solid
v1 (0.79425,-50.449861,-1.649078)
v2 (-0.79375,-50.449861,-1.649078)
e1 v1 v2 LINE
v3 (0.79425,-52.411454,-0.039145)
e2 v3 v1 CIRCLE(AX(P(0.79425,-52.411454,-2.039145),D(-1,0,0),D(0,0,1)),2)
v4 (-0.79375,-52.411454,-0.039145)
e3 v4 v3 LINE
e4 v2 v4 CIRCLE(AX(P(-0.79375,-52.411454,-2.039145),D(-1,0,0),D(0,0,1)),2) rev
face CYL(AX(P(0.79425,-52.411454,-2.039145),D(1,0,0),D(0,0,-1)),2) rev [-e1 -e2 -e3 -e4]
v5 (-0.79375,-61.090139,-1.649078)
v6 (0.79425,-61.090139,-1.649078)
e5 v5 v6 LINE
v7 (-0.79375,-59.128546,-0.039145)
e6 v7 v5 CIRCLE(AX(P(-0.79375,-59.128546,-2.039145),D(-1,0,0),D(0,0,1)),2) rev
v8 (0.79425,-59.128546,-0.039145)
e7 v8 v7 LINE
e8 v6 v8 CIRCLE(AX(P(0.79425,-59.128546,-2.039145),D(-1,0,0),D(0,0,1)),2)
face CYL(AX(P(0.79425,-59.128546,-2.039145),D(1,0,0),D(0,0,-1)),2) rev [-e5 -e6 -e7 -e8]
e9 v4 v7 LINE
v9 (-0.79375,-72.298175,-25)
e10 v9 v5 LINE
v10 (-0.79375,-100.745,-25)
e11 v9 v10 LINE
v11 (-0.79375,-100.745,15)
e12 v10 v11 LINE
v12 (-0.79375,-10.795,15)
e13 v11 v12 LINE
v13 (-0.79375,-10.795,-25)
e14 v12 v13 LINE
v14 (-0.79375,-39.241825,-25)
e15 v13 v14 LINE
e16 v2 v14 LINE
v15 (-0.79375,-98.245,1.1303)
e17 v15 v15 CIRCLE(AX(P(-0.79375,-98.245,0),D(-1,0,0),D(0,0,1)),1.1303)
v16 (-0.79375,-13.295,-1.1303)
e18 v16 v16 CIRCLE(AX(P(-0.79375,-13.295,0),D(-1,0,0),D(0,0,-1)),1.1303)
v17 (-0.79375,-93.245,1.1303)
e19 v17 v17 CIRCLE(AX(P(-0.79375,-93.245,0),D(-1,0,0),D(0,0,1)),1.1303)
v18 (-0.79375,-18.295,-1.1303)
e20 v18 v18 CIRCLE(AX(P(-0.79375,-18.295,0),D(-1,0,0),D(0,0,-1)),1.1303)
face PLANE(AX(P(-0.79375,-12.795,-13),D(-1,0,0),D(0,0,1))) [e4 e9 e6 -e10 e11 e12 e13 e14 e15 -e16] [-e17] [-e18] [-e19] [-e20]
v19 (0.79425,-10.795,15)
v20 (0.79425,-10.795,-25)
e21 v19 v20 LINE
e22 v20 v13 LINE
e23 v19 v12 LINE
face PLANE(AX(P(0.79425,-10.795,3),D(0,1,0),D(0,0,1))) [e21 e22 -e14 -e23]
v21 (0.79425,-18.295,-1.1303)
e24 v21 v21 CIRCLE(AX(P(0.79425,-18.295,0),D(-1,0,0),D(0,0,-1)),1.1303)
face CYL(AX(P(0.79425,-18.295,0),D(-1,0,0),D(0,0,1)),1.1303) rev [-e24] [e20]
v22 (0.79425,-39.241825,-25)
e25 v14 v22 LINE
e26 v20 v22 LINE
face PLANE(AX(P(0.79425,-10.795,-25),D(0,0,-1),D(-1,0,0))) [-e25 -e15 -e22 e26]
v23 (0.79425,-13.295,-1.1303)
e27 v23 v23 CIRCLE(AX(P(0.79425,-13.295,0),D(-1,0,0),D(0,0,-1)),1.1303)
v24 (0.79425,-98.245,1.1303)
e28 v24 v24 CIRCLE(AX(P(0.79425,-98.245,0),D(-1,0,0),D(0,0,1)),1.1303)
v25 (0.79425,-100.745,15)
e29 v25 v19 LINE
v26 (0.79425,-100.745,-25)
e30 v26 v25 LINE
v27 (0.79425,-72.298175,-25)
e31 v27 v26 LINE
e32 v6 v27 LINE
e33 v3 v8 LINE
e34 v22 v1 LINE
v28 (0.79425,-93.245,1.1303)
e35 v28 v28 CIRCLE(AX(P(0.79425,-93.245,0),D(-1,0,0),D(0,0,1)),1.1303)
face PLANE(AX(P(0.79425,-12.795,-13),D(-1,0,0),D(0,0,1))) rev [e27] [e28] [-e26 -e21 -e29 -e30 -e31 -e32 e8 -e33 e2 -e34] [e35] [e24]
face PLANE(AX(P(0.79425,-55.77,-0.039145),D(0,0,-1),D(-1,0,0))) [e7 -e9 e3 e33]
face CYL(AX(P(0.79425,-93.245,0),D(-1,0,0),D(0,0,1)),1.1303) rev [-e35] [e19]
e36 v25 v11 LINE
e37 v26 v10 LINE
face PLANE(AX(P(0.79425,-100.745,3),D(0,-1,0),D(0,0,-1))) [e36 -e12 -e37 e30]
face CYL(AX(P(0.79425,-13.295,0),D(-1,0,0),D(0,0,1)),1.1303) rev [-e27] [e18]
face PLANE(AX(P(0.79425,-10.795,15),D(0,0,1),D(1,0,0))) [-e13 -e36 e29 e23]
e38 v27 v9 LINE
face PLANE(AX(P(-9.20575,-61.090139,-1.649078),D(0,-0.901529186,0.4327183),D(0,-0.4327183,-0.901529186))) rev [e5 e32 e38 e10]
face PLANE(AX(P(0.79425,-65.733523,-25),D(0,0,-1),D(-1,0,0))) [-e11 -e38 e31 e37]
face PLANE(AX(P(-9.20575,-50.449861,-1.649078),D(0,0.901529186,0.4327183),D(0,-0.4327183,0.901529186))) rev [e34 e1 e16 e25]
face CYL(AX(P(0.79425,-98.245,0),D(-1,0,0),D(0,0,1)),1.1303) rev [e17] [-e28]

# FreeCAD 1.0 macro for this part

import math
import FreeCAD as App
import Part
import Sketcher

V = App.Vector
Q = App.Units.Quantity


def edges_at(feature, points):
    """Names of the edges that pass closest to the given points."""
    edges = feature.Shape.Edges
    near = lambda p: min(range(len(edges)), key=lambda i: edges[i].distToShape(Part.Vertex(*p))[0])
    return sorted({f"Edge{near(p) + 1}" for p in points})

doc = App.newDocument("Part")
body = doc.addObject("PartDesign::Body", "Body")

sketch1 = body.newObject("Sketcher::SketchObject", "Sketch")
sketch1.AttachmentSupport = (doc.getObject("YZ_Plane"), [""])
sketch1.MapMode = "FlatFace"
sketch1.AttachmentOffset = App.Placement(V(0, 0, -0.79375), App.Rotation())
sketch1.addGeometry(Part.ArcOfCircle(Part.Circle(V(-12.795, 3, 0), V(0, 0, 1), 2), math.radians(0), math.radians(90)), False)
sketch1.addGeometry(Part.LineSegment(V(-10.795, 3, 0), V(-10.795, -13, 0)), False)
sketch1.addGeometry(Part.ArcOfCircle(Part.Circle(V(-12.795, -13, 0), V(0, 0, 1), 2), math.radians(-90), math.radians(0)), False)
sketch1.addGeometry(Part.LineSegment(V(-12.795, -15, 0), V(-47.795, -15, 0)), False)
sketch1.addGeometry(Part.LineSegment(V(-47.795, -15, 0), V(-50.77, -0.039145, 0)), False)
sketch1.addGeometry(Part.LineSegment(V(-50.77, -0.039145, 0), V(-60.77, -0.039145, 0)), False)
sketch1.addGeometry(Part.LineSegment(V(-60.77, -0.039145, 0), V(-63.745, -15, 0)), False)
sketch1.addGeometry(Part.LineSegment(V(-63.745, -15, 0), V(-98.745, -15, 0)), False)
sketch1.addGeometry(Part.ArcOfCircle(Part.Circle(V(-98.745, -13, 0), V(0, 0, 1), 2), math.radians(-180), math.radians(-90)), False)
sketch1.addGeometry(Part.LineSegment(V(-100.745, -13, 0), V(-100.745, 3, 0)), False)
sketch1.addGeometry(Part.ArcOfCircle(Part.Circle(V(-98.745, 3, 0), V(0, 0, 1), 2), math.radians(90), math.radians(180)), False)
sketch1.addGeometry(Part.LineSegment(V(-98.745, 5, 0), V(-12.795, 5, 0)), False)
sketch1.addGeometry(Part.Circle(V(-13.295, 0, 0), V(0, 0, 1), 1.1303), False)
sketch1.addGeometry(Part.Circle(V(-18.295, 0, 0), V(0, 0, 1), 1.1303), False)
sketch1.addGeometry(Part.Circle(V(-93.245, 0, 0), V(0, 0, 1), 1.1303), False)
sketch1.addGeometry(Part.Circle(V(-98.245, 0, 0), V(0, 0, 1), 1.1303), False)
sketch1.addConstraint(Sketcher.Constraint("Tangent", 0, 1, 1, 1))
sketch1.addConstraint(Sketcher.Constraint("Tangent", 1, 2, 2, 2))
sketch1.addConstraint(Sketcher.Constraint("Tangent", 2, 1, 3, 1))
sketch1.addConstraint(Sketcher.Constraint("Coincident", 3, 2, 4, 1))
sketch1.addConstraint(Sketcher.Constraint("Coincident", 4, 2, 5, 1))
sketch1.addConstraint(Sketcher.Constraint("Coincident", 5, 2, 6, 1))
sketch1.addConstraint(Sketcher.Constraint("Coincident", 6, 2, 7, 1))
sketch1.addConstraint(Sketcher.Constraint("Tangent", 7, 2, 8, 2))
sketch1.addConstraint(Sketcher.Constraint("Tangent", 8, 1, 9, 1))
sketch1.addConstraint(Sketcher.Constraint("Tangent", 9, 2, 10, 2))
sketch1.addConstraint(Sketcher.Constraint("Tangent", 10, 1, 11, 1))
sketch1.addConstraint(Sketcher.Constraint("Tangent", 11, 2, 0, 2))
sketch1.addConstraint(Sketcher.Constraint("Vertical", 1))
sketch1.addConstraint(Sketcher.Constraint("Horizontal", 3))
sketch1.addConstraint(Sketcher.Constraint("Horizontal", 5))
sketch1.addConstraint(Sketcher.Constraint("Horizontal", 7))
sketch1.addConstraint(Sketcher.Constraint("Vertical", 9))
sketch1.addConstraint(Sketcher.Constraint("Horizontal", 11))
sketch1.addConstraint(Sketcher.Constraint("Equal", 0, 2))
sketch1.addConstraint(Sketcher.Constraint("Equal", 2, 8))
sketch1.addConstraint(Sketcher.Constraint("Equal", 8, 10))
sketch1.addConstraint(Sketcher.Constraint("Equal", 12, 13))
sketch1.addConstraint(Sketcher.Constraint("Equal", 13, 14))
sketch1.addConstraint(Sketcher.Constraint("Equal", 14, 15))
sketch1.addConstraint(Sketcher.Constraint("PointOnObject", 12, 3, -1))
sketch1.addConstraint(Sketcher.Constraint("PointOnObject", 13, 3, -1))
sketch1.addConstraint(Sketcher.Constraint("PointOnObject", 14, 3, -1))
sketch1.addConstraint(Sketcher.Constraint("PointOnObject", 15, 3, -1))
sketch1.addConstraint(Sketcher.Constraint("Horizontal", 2, 3, 8, 3))
sketch1.addConstraint(Sketcher.Constraint("Equal", 3, 7))
sketch1.addConstraint(Sketcher.Constraint("Equal", 4, 6))
sketch1.addConstraint(Sketcher.Constraint("Radius", 0, Q("2 mm")))
sketch1.addConstraint(Sketcher.Constraint("DistanceX", 3, 2, 3, 1, Q("35 mm")))
sketch1.addConstraint(Sketcher.Constraint("DistanceX", 5, 2, 5, 1, Q("10 mm")))
sketch1.addConstraint(Sketcher.Constraint("DistanceY", 1, 2, 1, 1, Q("16 mm")))
sketch1.addConstraint(Sketcher.Constraint("DistanceY", -1, 1, 0, 3, Q("3 mm")))
sketch1.addConstraint(Sketcher.Constraint("DistanceX", 13, 3, 12, 3, Q("5 mm")))
sketch1.addConstraint(Sketcher.Constraint("DistanceX", 15, 3, 14, 3, Q("5 mm")))
sketch1.addConstraint(Sketcher.Constraint("Diameter", 12, Q("2.2606 mm")))
sketch1.addConstraint(Sketcher.Constraint("DistanceX", 11, 1, 11, 2, Q("85.95 mm")))
sketch1.addConstraint(Sketcher.Constraint("DistanceX", 12, 3, 0, 3, Q("0.5 mm")))
sketch1.addConstraint(Sketcher.Constraint("DistanceX", 10, 3, 14, 3, Q("5.5 mm")))
sketch1.addConstraint(Sketcher.Constraint("DistanceX", 4, 2, -1, 1, Q("50.77 mm")))
sketch1.addConstraint(Sketcher.Constraint("Distance", 4, Q("15.25378 mm")))
pad1 = body.newObject("PartDesign::Pad", "Pad")
pad1.Profile = sketch1
pad1.Length = 1.588
doc.recompute()

fillet = body.newObject("PartDesign::Fillet", "Fillet")
fillet.Base = (pad1, edges_at(pad1, [(0, -50.77, -0.039)]))
fillet.Radius = 2
doc.recompute()

fillet2 = body.newObject("PartDesign::Fillet", "Fillet001")
fillet2.Base = (fillet, edges_at(fillet, [(0, -47.795, -15)]))
fillet2.Radius = 2
doc.recompute()

fillet3 = body.newObject("PartDesign::Fillet", "Fillet002")
fillet3.Base = (fillet2, edges_at(fillet2, [(0, -60.77, -0.039)]))
fillet3.Radius = 2
doc.recompute()

fillet4 = body.newObject("PartDesign::Fillet", "Fillet003")
fillet4.Base = (fillet3, edges_at(fillet3, [(0, -63.745, -15)]))
fillet4.Radius = 2

sketch2 = body.newObject("Sketcher::SketchObject", "Sketch001")
sketch2.AttachmentSupport = (doc.getObject("YZ_Plane"), [""])
sketch2.MapMode = "FlatFace"
sketch2.AttachmentOffset = App.Placement(V(0, 0, -0.79375), App.Rotation())
sketch2.addGeometry(Part.LineSegment(V(-10.795, 3, 0), V(-100.745, 3, 0)), False)
sketch2.addGeometry(Part.LineSegment(V(-100.745, 3, 0), V(-100.745, 15, 0)), False)
sketch2.addGeometry(Part.LineSegment(V(-100.745, 15, 0), V(-10.795, 15, 0)), False)
sketch2.addGeometry(Part.LineSegment(V(-10.795, 15, 0), V(-10.795, 3, 0)), False)
sketch2.addGeometry(Part.LineSegment(V(-10.795, -25, 0), V(-45.806477, -25, 0)), False)
sketch2.addGeometry(Part.LineSegment(V(-45.806477, -25, 0), V(-48.115139, -13.390067, 0)), False)
sketch2.addGeometry(Part.LineSegment(V(-48.115139, -13.390067, 0), V(-10.795, -13, 0)), False)
sketch2.addGeometry(Part.LineSegment(V(-10.795, -13, 0), V(-10.795, -25, 0)), False)
sketch2.addGeometry(Part.LineSegment(V(-63.424861, -13.390067, 0), V(-65.733523, -25, 0)), False)
sketch2.addGeometry(Part.LineSegment(V(-65.733523, -25, 0), V(-100.745, -25, 0)), False)
sketch2.addGeometry(Part.LineSegment(V(-100.745, -25, 0), V(-100.745, -13, 0)), False)
sketch2.addGeometry(Part.LineSegment(V(-100.745, -13, 0), V(-63.424861, -13.390067, 0)), False)
sketch2.addConstraint(Sketcher.Constraint("Coincident", 0, 2, 1, 1))
sketch2.addConstraint(Sketcher.Constraint("Coincident", 1, 2, 2, 1))
sketch2.addConstraint(Sketcher.Constraint("Coincident", 2, 2, 3, 1))
sketch2.addConstraint(Sketcher.Constraint("Coincident", 3, 2, 0, 1))
sketch2.addConstraint(Sketcher.Constraint("Coincident", 4, 2, 5, 1))
sketch2.addConstraint(Sketcher.Constraint("Coincident", 5, 2, 6, 1))
sketch2.addConstraint(Sketcher.Constraint("Coincident", 6, 2, 7, 1))
sketch2.addConstraint(Sketcher.Constraint("Coincident", 7, 2, 4, 1))
sketch2.addConstraint(Sketcher.Constraint("Coincident", 8, 2, 9, 1))
sketch2.addConstraint(Sketcher.Constraint("Coincident", 9, 2, 10, 1))
sketch2.addConstraint(Sketcher.Constraint("Coincident", 10, 2, 11, 1))
sketch2.addConstraint(Sketcher.Constraint("Coincident", 11, 2, 8, 1))
sketch2.addConstraint(Sketcher.Constraint("Horizontal", 0))
sketch2.addConstraint(Sketcher.Constraint("Vertical", 1))
sketch2.addConstraint(Sketcher.Constraint("Horizontal", 2))
sketch2.addConstraint(Sketcher.Constraint("Vertical", 3))
sketch2.addConstraint(Sketcher.Constraint("Horizontal", 4))
sketch2.addConstraint(Sketcher.Constraint("Vertical", 7))
sketch2.addConstraint(Sketcher.Constraint("Horizontal", 9))
sketch2.addConstraint(Sketcher.Constraint("Vertical", 10))
sketch2.addConstraint(Sketcher.Constraint("Horizontal", 7, 2, 8, 2))
sketch2.addConstraint(Sketcher.Constraint("Horizontal", 6, 2, 10, 2))
sketch2.addConstraint(Sketcher.Constraint("Horizontal", 5, 2, 11, 2))
sketch2.addConstraint(Sketcher.Constraint("Vertical", 3, 2, 6, 2))
sketch2.addConstraint(Sketcher.Constraint("Vertical", 1, 2, 9, 2))
sketch2.addConstraint(Sketcher.Constraint("Equal", 4, 9))
sketch2.addConstraint(Sketcher.Constraint("Equal", 3, 7))
sketch2.addConstraint(Sketcher.Constraint("Equal", 5, 8))
sketch2.addConstraint(Sketcher.Constraint("DistanceY", 1, 1, 1, 2, Q("12 mm")))
sketch2.addConstraint(Sketcher.Constraint("DistanceY", -1, 1, 0, 2, Q("3 mm")))
sketch2.addConstraint(Sketcher.Constraint("DistanceY", 4, 2, -1, 1, Q("25 mm")))
sketch2.addConstraint(Sketcher.Constraint("DistanceX", 0, 2, 0, 1, Q("89.95 mm")))
sketch2.addConstraint(Sketcher.Constraint("DistanceX", 0, 2, -1, 1, Q("100.745 mm")))
sketch2.addConstraint(Sketcher.Constraint("Distance", 5, Q("11.837249 mm")))
sketch2.addConstraint(Sketcher.Constraint("DistanceX", 4, 2, 4, 1, Q("35.011477 mm")))
sketch2.addConstraint(Sketcher.Constraint("DistanceX", 5, 2, -1, 1, Q("48.115139 mm")))
pad2 = body.newObject("PartDesign::Pad", "Pad001")
pad2.Profile = sketch2
pad2.Length = 1.588

sketch3 = body.newObject("Sketcher::SketchObject", "Sketch002")
sketch3.AttachmentSupport = (doc.getObject("YZ_Plane"), [""])
sketch3.MapMode = "FlatFace"
sketch3.AttachmentOffset = App.Placement(V(0, 0, 0.79425), App.Rotation())
sketch3.addGeometry(Part.LineSegment(V(-50.449861, -1.649078, 0), V(-45.806477, -25, 0)), False)
sketch3.addGeometry(Part.LineSegment(V(-45.806477, -25, 0), V(-39.241825, -25, 0)), False)
sketch3.addGeometry(Part.LineSegment(V(-39.241825, -25, 0), V(-50.449861, -1.649078, 0)), False)
sketch3.addGeometry(Part.LineSegment(V(-72.298175, -25, 0), V(-65.733523, -25, 0)), False)
sketch3.addGeometry(Part.LineSegment(V(-65.733523, -25, 0), V(-61.090139, -1.649078, 0)), False)
sketch3.addGeometry(Part.LineSegment(V(-61.090139, -1.649078, 0), V(-72.298175, -25, 0)), False)
sketch3.addConstraint(Sketcher.Constraint("Coincident", 0, 2, 1, 1))
sketch3.addConstraint(Sketcher.Constraint("Coincident", 1, 2, 2, 1))
sketch3.addConstraint(Sketcher.Constraint("Coincident", 2, 2, 0, 1))
sketch3.addConstraint(Sketcher.Constraint("Coincident", 3, 2, 4, 1))
sketch3.addConstraint(Sketcher.Constraint("Coincident", 4, 2, 5, 1))
sketch3.addConstraint(Sketcher.Constraint("Coincident", 5, 2, 3, 1))
sketch3.addConstraint(Sketcher.Constraint("Horizontal", 1))
sketch3.addConstraint(Sketcher.Constraint("Horizontal", 3))
sketch3.addConstraint(Sketcher.Constraint("Horizontal", 1, 2, 3, 2))
sketch3.addConstraint(Sketcher.Constraint("Horizontal", 2, 2, 4, 2))
sketch3.addConstraint(Sketcher.Constraint("Equal", 1, 3))
sketch3.addConstraint(Sketcher.Constraint("Equal", 0, 4))
sketch3.addConstraint(Sketcher.Constraint("DistanceY", 0, 2, -1, 1, Q("25 mm")))
sketch3.addConstraint(Sketcher.Constraint("DistanceX", 1, 1, 1, 2, Q("6.564652 mm")))
sketch3.addConstraint(Sketcher.Constraint("Distance", 0, Q("23.80812 mm")))
sketch3.addConstraint(Sketcher.Constraint("Distance", 2, Q("25.90146 mm")))
sketch3.addConstraint(Sketcher.Constraint("DistanceX", 2, 2, -1, 1, Q("50.449861 mm")))
sketch3.addConstraint(Sketcher.Constraint("DistanceX", 4, 2, -1, 1, Q("61.090139 mm")))
pocket1 = body.newObject("PartDesign::Pocket", "Pocket")
pocket1.Profile = sketch3
pocket1.Length = 10

doc.recompute()
